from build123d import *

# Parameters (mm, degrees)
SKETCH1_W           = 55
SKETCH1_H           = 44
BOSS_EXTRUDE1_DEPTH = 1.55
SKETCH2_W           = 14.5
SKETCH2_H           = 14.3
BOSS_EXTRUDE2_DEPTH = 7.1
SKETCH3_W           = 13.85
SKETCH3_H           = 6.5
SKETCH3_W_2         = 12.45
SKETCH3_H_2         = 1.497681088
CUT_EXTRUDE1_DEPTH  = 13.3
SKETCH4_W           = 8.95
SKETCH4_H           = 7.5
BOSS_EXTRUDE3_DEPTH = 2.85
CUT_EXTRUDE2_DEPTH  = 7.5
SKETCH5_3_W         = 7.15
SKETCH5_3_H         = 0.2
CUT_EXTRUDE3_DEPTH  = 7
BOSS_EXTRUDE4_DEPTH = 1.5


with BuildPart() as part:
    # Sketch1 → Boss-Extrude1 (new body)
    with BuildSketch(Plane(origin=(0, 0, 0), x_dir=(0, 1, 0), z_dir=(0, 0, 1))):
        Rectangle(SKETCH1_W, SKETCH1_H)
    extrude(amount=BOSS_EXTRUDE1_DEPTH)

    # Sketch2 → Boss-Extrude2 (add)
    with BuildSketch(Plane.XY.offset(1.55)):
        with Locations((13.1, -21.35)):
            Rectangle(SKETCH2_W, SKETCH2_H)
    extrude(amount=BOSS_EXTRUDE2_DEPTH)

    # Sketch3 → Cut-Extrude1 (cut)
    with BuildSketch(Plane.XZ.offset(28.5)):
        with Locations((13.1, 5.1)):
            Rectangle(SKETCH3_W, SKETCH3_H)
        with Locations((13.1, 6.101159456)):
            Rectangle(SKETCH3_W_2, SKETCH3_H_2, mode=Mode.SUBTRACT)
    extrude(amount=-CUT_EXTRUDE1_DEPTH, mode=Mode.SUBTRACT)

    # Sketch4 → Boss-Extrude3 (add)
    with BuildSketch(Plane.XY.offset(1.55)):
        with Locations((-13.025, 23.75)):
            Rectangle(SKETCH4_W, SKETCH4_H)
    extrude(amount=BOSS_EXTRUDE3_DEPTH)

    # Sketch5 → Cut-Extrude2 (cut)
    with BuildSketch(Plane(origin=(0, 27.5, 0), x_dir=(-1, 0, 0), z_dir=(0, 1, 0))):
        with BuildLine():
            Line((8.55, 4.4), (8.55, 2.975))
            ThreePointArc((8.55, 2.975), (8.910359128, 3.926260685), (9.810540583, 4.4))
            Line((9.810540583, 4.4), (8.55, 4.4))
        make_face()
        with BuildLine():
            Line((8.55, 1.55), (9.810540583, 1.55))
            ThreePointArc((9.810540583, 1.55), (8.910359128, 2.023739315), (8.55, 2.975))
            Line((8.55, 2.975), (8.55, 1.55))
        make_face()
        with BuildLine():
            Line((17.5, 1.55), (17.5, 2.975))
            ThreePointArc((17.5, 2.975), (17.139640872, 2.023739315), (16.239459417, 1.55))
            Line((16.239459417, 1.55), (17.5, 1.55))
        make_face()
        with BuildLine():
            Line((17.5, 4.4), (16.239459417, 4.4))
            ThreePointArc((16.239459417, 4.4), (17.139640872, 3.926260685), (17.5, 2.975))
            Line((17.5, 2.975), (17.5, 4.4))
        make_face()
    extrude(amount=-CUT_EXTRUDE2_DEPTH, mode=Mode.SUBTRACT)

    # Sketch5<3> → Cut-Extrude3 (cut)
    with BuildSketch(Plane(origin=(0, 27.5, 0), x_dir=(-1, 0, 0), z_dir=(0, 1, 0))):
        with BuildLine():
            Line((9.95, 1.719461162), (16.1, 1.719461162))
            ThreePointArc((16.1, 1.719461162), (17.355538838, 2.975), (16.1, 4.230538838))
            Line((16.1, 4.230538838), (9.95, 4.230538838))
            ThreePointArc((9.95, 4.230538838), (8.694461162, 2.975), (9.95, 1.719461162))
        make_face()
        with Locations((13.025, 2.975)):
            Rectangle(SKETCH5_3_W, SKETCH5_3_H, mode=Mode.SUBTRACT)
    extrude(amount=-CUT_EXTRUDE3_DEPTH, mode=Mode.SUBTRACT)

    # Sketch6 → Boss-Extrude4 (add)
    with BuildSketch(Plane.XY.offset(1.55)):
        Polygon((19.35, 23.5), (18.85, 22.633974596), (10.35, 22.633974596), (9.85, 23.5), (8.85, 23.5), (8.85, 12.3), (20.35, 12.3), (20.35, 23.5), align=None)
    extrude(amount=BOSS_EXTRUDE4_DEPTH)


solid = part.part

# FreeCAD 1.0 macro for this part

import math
import FreeCAD as App
import Part
import Sketcher

V = App.Vector
Q = App.Units.Quantity

doc = App.newDocument("Part")
body = doc.addObject("PartDesign::Body", "Body")

# Sketch on XY plane
sketch1 = doc.addObject("Sketcher::SketchObject", "Sketch")
body.addObject(sketch1)
sketch1.AttachmentSupport = (doc.XY_Plane, [""])
sketch1.MapMode = "FlatFace"
sketch1.addGeometry([
    Part.LineSegment(V(-22, -28, 0), V(22, -28, 0)),
    Part.LineSegment(V(22, -28, 0), V(22, 28, 0)),
    Part.LineSegment(V(22, 28, 0), V(-22, 28, 0)),
    Part.LineSegment(V(-22, 28, 0), V(-22, -28, 0)),
], False)
sketch1.addConstraint([
    Sketcher.Constraint("Coincident", 0, 2, 1, 1),
    Sketcher.Constraint("Coincident", 1, 2, 2, 1),
    Sketcher.Constraint("Coincident", 2, 2, 3, 1),
    Sketcher.Constraint("Coincident", 3, 2, 0, 1),
    Sketcher.Constraint("Horizontal", 0),
    Sketcher.Constraint("Vertical", 1),
    Sketcher.Constraint("Horizontal", 2),
    Sketcher.Constraint("Vertical", 3),
    Sketcher.Constraint("Symmetric", 0, 2, 2, 2, -1, 1),
    Sketcher.Constraint("DistanceX", 0, 1, 0, 2, 44.0),
    Sketcher.Constraint("DistanceY", 1, 1, 1, 2, 55.0),
])
pad1 = doc.addObject("PartDesign::Pad", "Pad")
body.addObject(pad1)
pad1.Profile = sketch1
pad1.Length = 1.55

# Sketch on XY plane
sketch2 = doc.addObject("Sketcher::SketchObject", "Sketch001")
body.addObject(sketch2)
sketch2.AttachmentSupport = (doc.XY_Plane, [""])
sketch2.MapMode = "FlatFace"
sketch2.AttachmentOffset = App.Placement(V(0, 0, 1.55), App.Rotation())
sketch2.addGeometry([
    Part.LineSegment(V(6, -14, 0), V(6, -28, 0)),
    Part.LineSegment(V(6, -28, 0), V(20, -28, 0)),
    Part.LineSegment(V(20, -28, 0), V(20, -14, 0)),
    Part.LineSegment(V(20, -14, 0), V(6, -14, 0)),
], False)
sketch2.addConstraint([
    Sketcher.Constraint("Coincident", 0, 2, 1, 1),
    Sketcher.Constraint("Coincident", 1, 2, 2, 1),
    Sketcher.Constraint("Coincident", 2, 2, 3, 1),
    Sketcher.Constraint("Coincident", 3, 2, 0, 1),
    Sketcher.Constraint("Vertical", 0),
    Sketcher.Constraint("Horizontal", 1),
    Sketcher.Constraint("Vertical", 2),
    Sketcher.Constraint("Horizontal", 3),
    Sketcher.Constraint("DistanceX", 1, 1, 1, 2, 14.5),
    Sketcher.Constraint("DistanceY", 0, 2, 0, 1, 14.3),
    Sketcher.Constraint("DistanceY", 0, 2, -1, 1, 28.5),
    Sketcher.Constraint("DistanceX", -1, 1, 0, 2, 5.85),
])
pad2 = doc.addObject("PartDesign::Pad", "Pad001")
body.addObject(pad2)
pad2.Profile = sketch2
pad2.Length = 7.1

# Sketch on XZ plane
sketch3 = doc.addObject("Sketcher::SketchObject", "Sketch002")
body.addObject(sketch3)
sketch3.AttachmentSupport = (doc.XZ_Plane, [""])
sketch3.MapMode = "FlatFace"
sketch3.AttachmentOffset = App.Placement(V(0, 0, 28.5), App.Rotation())
sketch3.addGeometry([
    Part.LineSegment(V(6.2, 8.3, 0), V(6.2, 1.9, 0)),  # 0
    Part.LineSegment(V(6.2, 1.9, 0), V(20, 1.9, 0)),  # 1
    Part.LineSegment(V(20, 1.9, 0), V(20, 8.3, 0)),  # 2
    Part.LineSegment(V(20, 8.3, 0), V(6.2, 8.3, 0)),  # 3
    Part.LineSegment(V(19.3, 5.4, 0), V(6.9, 5.4, 0)),  # 4
    Part.LineSegment(V(6.9, 5.4, 0), V(6.9, 6.8, 0)),  # 5
    Part.LineSegment(V(6.9, 6.8, 0), V(19.3, 6.8, 0)),  # 6
    Part.LineSegment(V(19.3, 6.8, 0), V(19.3, 5.4, 0)),  # 7
], False)
sketch3.addConstraint([
    Sketcher.Constraint("Coincident", 0, 2, 1, 1),
    Sketcher.Constraint("Coincident", 1, 2, 2, 1),
    Sketcher.Constraint("Coincident", 2, 2, 3, 1),
    Sketcher.Constraint("Coincident", 3, 2, 0, 1),
    Sketcher.Constraint("Coincident", 4, 2, 5, 1),
    Sketcher.Constraint("Coincident", 5, 2, 6, 1),
    Sketcher.Constraint("Coincident", 6, 2, 7, 1),
    Sketcher.Constraint("Coincident", 7, 2, 4, 1),
    Sketcher.Constraint("Vertical", 0),
    Sketcher.Constraint("Horizontal", 1),
    Sketcher.Constraint("Vertical", 2),
    Sketcher.Constraint("Horizontal", 3),
    Sketcher.Constraint("Horizontal", 4),
    Sketcher.Constraint("Vertical", 5),
    Sketcher.Constraint("Horizontal", 6),
    Sketcher.Constraint("Vertical", 7),
    Sketcher.Constraint("DistanceY", 0, 2, 0, 1, 6.5),
    Sketcher.Constraint("DistanceY", 0, 2, 5, 2, 5.0),
    Sketcher.Constraint("DistanceX", 1, 1, 1, 2, 13.85),
    Sketcher.Constraint("DistanceX", 4, 2, 4, 1, 12.45),
    Sketcher.Constraint("DistanceX", 3, 2, 4, 2, 0.7),
    Sketcher.Constraint("DistanceY", -1, 1, 0, 2, 1.85),
    Sketcher.Constraint("DistanceX", -1, 1, 0, 2, 6.175),
    Sketcher.Constraint("DistanceY", 5, 1, 5, 2, 1.497681),
])
pocket1 = doc.addObject("PartDesign::Pocket", "Pocket")
body.addObject(pocket1)
pocket1.Profile = sketch3
pocket1.Length = 13.3

# Sketch on XY plane
sketch4 = doc.addObject("Sketcher::SketchObject", "Sketch003")
body.addObject(sketch4)
sketch4.AttachmentSupport = (doc.XY_Plane, [""])
sketch4.MapMode = "FlatFace"
sketch4.AttachmentOffset = App.Placement(V(0, 0, 1.55), App.Rotation())
sketch4.addGeometry([
    Part.LineSegment(V(-18, 28, 0), V(-18, 20, 0)),
    Part.LineSegment(V(-18, 20, 0), V(-9, 20, 0)),
    Part.LineSegment(V(-9, 20, 0), V(-9, 28, 0)),
    Part.LineSegment(V(-9, 28, 0), V(-18, 28, 0)),
], False)
sketch4.addConstraint([
    Sketcher.Constraint("Coincident", 0, 2, 1, 1),
    Sketcher.Constraint("Coincident", 1, 2, 2, 1),
    Sketcher.Constraint("Coincident", 2, 2, 3, 1),
    Sketcher.Constraint("Coincident", 3, 2, 0, 1),
    Sketcher.Constraint("Vertical", 0),
    Sketcher.Constraint("Horizontal", 1),
    Sketcher.Constraint("Vertical", 2),
    Sketcher.Constraint("Horizontal", 3),
    Sketcher.Constraint("DistanceY", 0, 2, 0, 1, 7.5),
    Sketcher.Constraint("DistanceY", -1, 1, 0, 2, 20.0),
    Sketcher.Constraint("DistanceX", 1, 1, 1, 2, 8.95),
    Sketcher.Constraint("DistanceX", 0, 2, -1, 1, 17.5),
])
pad3 = doc.addObject("PartDesign::Pad", "Pad002")
body.addObject(pad3)
pad3.Profile = sketch4
pad3.Length = 2.85

# Sketch on XZ plane
sketch5 = doc.addObject("Sketcher::SketchObject", "Sketch004")
body.addObject(sketch5)
sketch5.AttachmentSupport = (doc.XZ_Plane, [""])
sketch5.MapMode = "FlatFace"
sketch5.AttachmentOffset = App.Placement(V(0, 0, -27.5), App.Rotation())
sketch5.addGeometry([
    Part.LineSegment(V(-8.6, 4.4, 0), V(-8.6, 3, 0)),  # 0
    Part.ArcOfCircle(Part.Circle(V(-10, 3, 0), V(0, 0, 1), 1.4), math.radians(0), math.radians(83)),  # 1
    Part.LineSegment(V(-9.8, 4.4, 0), V(-8.6, 4.4, 0)),  # 2
    Part.LineSegment(V(-8.6, 1.6, 0), V(-9.8, 1.6, 0)),  # 3
    Part.ArcOfCircle(Part.Circle(V(-10, 3, 0), V(0, 0, 1), 1.4), math.radians(-83), math.radians(0)),  # 4
    Part.LineSegment(V(-8.6, 3, 0), V(-8.6, 1.6, 0)),  # 5
    Part.LineSegment(V(-17.5, 1.6, 0), V(-17.5, 3, 0)),  # 6
    Part.ArcOfCircle(Part.Circle(V(-16.1, 3, 0), V(0, 0, 1), 1.4), math.radians(180), math.radians(263)),  # 7
    Part.LineSegment(V(-16.2, 1.6, 0), V(-17.5, 1.6, 0)),  # 8
    Part.LineSegment(V(-17.5, 4.4, 0), V(-16.2, 4.4, 0)),  # 9
    Part.ArcOfCircle(Part.Circle(V(-16.1, 3, 0), V(0, 0, 1), 1.4), math.radians(97), math.radians(180)),  # 10
    Part.LineSegment(V(-17.5, 3, 0), V(-17.5, 4.4, 0)),  # 11
], False)
sketch5.addConstraint([
    Sketcher.Constraint("Tangent", 0, 2, 1, 1),
    Sketcher.Constraint("Coincident", 1, 2, 2, 1),
    Sketcher.Constraint("Coincident", 2, 2, 0, 1),
    Sketcher.Constraint("Coincident", 3, 2, 4, 1),
    Sketcher.Constraint("Tangent", 4, 2, 5, 1),
    Sketcher.Constraint("Coincident", 5, 2, 3, 1),
    Sketcher.Constraint("Tangent", 6, 2, 7, 1),
    Sketcher.Constraint("Coincident", 7, 2, 8, 1),
    Sketcher.Constraint("Coincident", 8, 2, 6, 1),
    Sketcher.Constraint("Coincident", 9, 2, 10, 1),
    Sketcher.Constraint("Tangent", 10, 2, 11, 1),
    Sketcher.Constraint("Coincident", 11, 2, 9, 1),
    Sketcher.Constraint("Vertical", 0),
    Sketcher.Constraint("Horizontal", 2),
    Sketcher.Constraint("Horizontal", 3),
    Sketcher.Constraint("Vertical", 5),
    Sketcher.Constraint("Vertical", 6),
    Sketcher.Constraint("Horizontal", 8),
    Sketcher.Constraint("Horizontal", 9),
    Sketcher.Constraint("Vertical", 11),
    Sketcher.Constraint("Coincident", 4, 3, 1, 3),
    Sketcher.Constraint("Coincident", 10, 3, 7, 3),
    Sketcher.Constraint("Equal", 1, 4),
    Sketcher.Constraint("Equal", 4, 7),
    Sketcher.Constraint("Equal", 7, 10),
    Sketcher.Constraint("Horizontal", 4, 3, 7, 3),
    Sketcher.Constraint("Horizontal", 5, 2, 7, 2),
    Sketcher.Constraint("Horizontal", 2, 2, 9, 2),
    Sketcher.Constraint("Vertical", 1, 2, 3, 2),
    Sketcher.Constraint("DistanceY", -1, 1, 1, 2, 4.4),
    Sketcher.Constraint("DistanceX", 6, 2, -1, 1, 17.5),
    Sketcher.Constraint("DistanceY", 0, 2, 0, 1, 1.425),
    Sketcher.Constraint("DistanceX", 0, 2, -1, 1, 8.55),
    Sketcher.Constraint("Radius", 1, 1.435728),
])
pocket2 = doc.addObject("PartDesign::Pocket", "Pocket001")
body.addObject(pocket2)
pocket2.Profile = sketch5
pocket2.Length = 7.5
pocket2.Reversed = True

# Sketch on XZ plane
sketch6 = doc.addObject("Sketcher::SketchObject", "Sketch005")
body.addObject(sketch6)
sketch6.AttachmentSupport = (doc.XZ_Plane, [""])
sketch6.MapMode = "FlatFace"
sketch6.AttachmentOffset = App.Placement(V(0, 0, -27.5), App.Rotation())
sketch6.addGeometry([
    Part.LineSegment(V(-9.95, 1.72, 0), V(-16.1, 1.72, 0)),  # 0
    Part.ArcOfCircle(Part.Circle(V(-16.1, 2.98, 0), V(0, 0, 1), 1.26), math.radians(90), math.radians(270)),  # 1
    Part.LineSegment(V(-16.1, 4.23, 0), V(-9.95, 4.23, 0)),  # 2
    Part.ArcOfCircle(Part.Circle(V(-9.95, 2.98, 0), V(0, 0, 1), 1.26), math.radians(-90), math.radians(90)),  # 3
    Part.LineSegment(V(-16.6, 2.88, 0), V(-9.45, 2.88, 0)),  # 4
    Part.LineSegment(V(-9.45, 2.88, 0), V(-9.45, 3.08, 0)),  # 5
    Part.LineSegment(V(-9.45, 3.08, 0), V(-16.6, 3.08, 0)),  # 6
    Part.LineSegment(V(-16.6, 3.08, 0), V(-16.6, 2.88, 0)),  # 7
], False)
sketch6.addConstraint([
    Sketcher.Constraint("Tangent", 0, 2, 1, 2),
    Sketcher.Constraint("Tangent", 1, 1, 2, 1),
    Sketcher.Constraint("Tangent", 2, 2, 3, 2),
    Sketcher.Constraint("Tangent", 3, 1, 0, 1),
    Sketcher.Constraint("Coincident", 4, 2, 5, 1),
    Sketcher.Constraint("Coincident", 5, 2, 6, 1),
    Sketcher.Constraint("Coincident", 6, 2, 7, 1),
    Sketcher.Constraint("Coincident", 7, 2, 4, 1),
    Sketcher.Constraint("Horizontal", 0),
    Sketcher.Constraint("Horizontal", 2),
    Sketcher.Constraint("Horizontal", 4),
    Sketcher.Constraint("Vertical", 5),
    Sketcher.Constraint("Horizontal", 6),
    Sketcher.Constraint("Vertical", 7),
    Sketcher.Constraint("DistanceY", 5, 1, 5, 2, 0.2),
    Sketcher.Constraint("DistanceX", 0, 2, 0, 1, 6.15),
    Sketcher.Constraint("DistanceX", 4, 1, 4, 2, 7.15),
    Sketcher.Constraint("DistanceX", 1, 3, -1, 1, 16.1),
    Sketcher.Constraint("DistanceX", 6, 2, -1, 1, 16.6),
    Sketcher.Constraint("DistanceY", 4, 2, 3, 3, 0.1),
    Sketcher.Constraint("Radius", 1, 1.255539),
    Sketcher.Constraint("DistanceY", -1, 1, 1, 3, 2.975),
])
pocket3 = doc.addObject("PartDesign::Pocket", "Pocket002")
body.addObject(pocket3)
pocket3.Profile = sketch6
pocket3.Length = 7
pocket3.Reversed = True

# Sketch on XY plane
sketch7 = doc.addObject("Sketcher::SketchObject", "Sketch006")
body.addObject(sketch7)
sketch7.AttachmentSupport = (doc.XY_Plane, [""])
sketch7.MapMode = "FlatFace"
sketch7.AttachmentOffset = App.Placement(V(0, 0, 1.55), App.Rotation())
sketch7.addGeometry([
    Part.LineSegment(V(19.4, 23.5, 0), V(18.9, 22.6, 0)),  # 0
    Part.LineSegment(V(18.9, 22.6, 0), V(10.3, 22.6, 0)),  # 1
    Part.LineSegment(V(10.3, 22.6, 0), V(9.8, 23.5, 0)),  # 2
    Part.LineSegment(V(9.8, 23.5, 0), V(8.8, 23.5, 0)),  # 3
    Part.LineSegment(V(8.8, 23.5, 0), V(8.8, 12.3, 0)),  # 4
    Part.LineSegment(V(8.8, 12.3, 0), V(20.4, 12.3, 0)),  # 5
    Part.LineSegment(V(20.4, 12.3, 0), V(20.4, 23.5, 0)),  # 6
    Part.LineSegment(V(20.4, 23.5, 0), V(19.4, 23.5, 0)),  # 7
], False)
sketch7.addConstraint([
    Sketcher.Constraint("Coincident", 0, 2, 1, 1),
    Sketcher.Constraint("Coincident", 1, 2, 2, 1),
    Sketcher.Constraint("Coincident", 2, 2, 3, 1),
    Sketcher.Constraint("Coincident", 3, 2, 4, 1),
    Sketcher.Constraint("Coincident", 4, 2, 5, 1),
    Sketcher.Constraint("Coincident", 5, 2, 6, 1),
    Sketcher.Constraint("Coincident", 6, 2, 7, 1),
    Sketcher.Constraint("Coincident", 7, 2, 0, 1),
    Sketcher.Constraint("Horizontal", 1),
    Sketcher.Constraint("Horizontal", 3),
    Sketcher.Constraint("Vertical", 4),
    Sketcher.Constraint("Horizontal", 5),
    Sketcher.Constraint("Vertical", 6),
    Sketcher.Constraint("Horizontal", 7),
    Sketcher.Constraint("Horizontal", 3, 2, 6, 2),
    Sketcher.Constraint("Equal", 3, 7),
    Sketcher.Constraint("Equal", 0, 2),
    Sketcher.Constraint("DistanceX", 3, 2, 3, 1, 1.0),
    Sketcher.Constraint("Angle", 0, Q("-120 deg")),
    Sketcher.Constraint("Distance", 0, 1.0),
    Sketcher.Constraint("DistanceX", 1, 2, 1, 1, 8.5),
    Sketcher.Constraint("DistanceY", 4, 2, 4, 1, 11.2),
    Sketcher.Constraint("DistanceY", -1, 1, 2, 2, 23.5),
    Sketcher.Constraint("DistanceX", -1, 1, 0, 2, 18.85),
])
pad4 = doc.addObject("PartDesign::Pad", "Pad003")
body.addObject(pad4)
pad4.Profile = sketch7
pad4.Length = 1.5

doc.recompute()
